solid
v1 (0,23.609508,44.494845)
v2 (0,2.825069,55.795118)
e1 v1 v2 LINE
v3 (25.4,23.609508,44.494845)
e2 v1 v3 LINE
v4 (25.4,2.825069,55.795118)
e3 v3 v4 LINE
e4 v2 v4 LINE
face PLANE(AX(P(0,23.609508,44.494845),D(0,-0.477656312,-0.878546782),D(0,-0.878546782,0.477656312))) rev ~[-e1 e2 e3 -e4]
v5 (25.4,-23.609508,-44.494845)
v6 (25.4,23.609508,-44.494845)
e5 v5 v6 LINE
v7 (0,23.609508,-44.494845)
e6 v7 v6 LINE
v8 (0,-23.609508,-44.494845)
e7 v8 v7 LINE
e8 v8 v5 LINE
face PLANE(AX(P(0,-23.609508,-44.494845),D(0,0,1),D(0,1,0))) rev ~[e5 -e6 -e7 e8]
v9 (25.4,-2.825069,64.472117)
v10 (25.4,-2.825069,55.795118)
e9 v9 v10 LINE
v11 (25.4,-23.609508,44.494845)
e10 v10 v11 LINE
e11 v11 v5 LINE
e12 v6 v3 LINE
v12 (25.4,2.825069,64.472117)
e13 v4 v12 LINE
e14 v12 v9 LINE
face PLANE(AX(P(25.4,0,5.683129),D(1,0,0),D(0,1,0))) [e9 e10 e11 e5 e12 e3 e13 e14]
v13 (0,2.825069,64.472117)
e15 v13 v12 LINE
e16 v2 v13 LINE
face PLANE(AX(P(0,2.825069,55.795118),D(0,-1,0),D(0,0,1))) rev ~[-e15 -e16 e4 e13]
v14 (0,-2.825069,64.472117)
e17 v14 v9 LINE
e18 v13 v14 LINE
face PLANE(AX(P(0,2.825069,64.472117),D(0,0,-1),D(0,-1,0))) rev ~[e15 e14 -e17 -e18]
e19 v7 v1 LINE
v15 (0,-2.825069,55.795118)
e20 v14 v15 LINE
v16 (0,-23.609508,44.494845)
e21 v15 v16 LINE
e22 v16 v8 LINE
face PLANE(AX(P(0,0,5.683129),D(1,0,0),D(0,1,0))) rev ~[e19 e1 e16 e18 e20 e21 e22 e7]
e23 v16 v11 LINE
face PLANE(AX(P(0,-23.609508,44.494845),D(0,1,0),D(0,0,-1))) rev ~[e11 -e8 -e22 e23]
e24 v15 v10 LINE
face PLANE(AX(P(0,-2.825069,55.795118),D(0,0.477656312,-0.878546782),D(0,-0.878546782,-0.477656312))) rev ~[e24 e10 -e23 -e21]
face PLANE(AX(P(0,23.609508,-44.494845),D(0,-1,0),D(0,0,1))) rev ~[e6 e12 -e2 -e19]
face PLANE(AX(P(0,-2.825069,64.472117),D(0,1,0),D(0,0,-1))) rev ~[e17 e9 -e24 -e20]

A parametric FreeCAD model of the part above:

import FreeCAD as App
import Part
import Sketcher

V = App.Vector
Q = App.Units.Quantity

doc = App.newDocument("Part")
body = doc.addObject("PartDesign::Body", "Body")

# Sketch on YZ plane
sketch1 = body.newObject("Sketcher::SketchObject", "Sketch")
sketch1.AttachmentSupport = (doc.getObject("YZ_Plane"), [""])
sketch1.MapMode = "FlatFace"
sketch1.addGeometry([
    Part.LineSegment(V(-24, 44, 0), V(-24, -44, 0)),  # 0
    Part.LineSegment(V(-24, -44, 0), V(24, -44, 0)),  # 1
    Part.LineSegment(V(24, -44, 0), V(24, 44, 0)),  # 2
    Part.LineSegment(V(24, 44, 0), V(3, 56, 0)),  # 3
    Part.LineSegment(V(3, 56, 0), V(3, 64, 0)),  # 4
    Part.LineSegment(V(3, 64, 0), V(-3, 64, 0)),  # 5
    Part.LineSegment(V(-3, 64, 0), V(-3, 56, 0)),  # 6
    Part.LineSegment(V(-3, 56, 0), V(-24, 44, 0)),  # 7
], False)
sketch1.addConstraint([
    Sketcher.Constraint("Coincident", 0, 2, 1, 1),
    Sketcher.Constraint("Coincident", 1, 2, 2, 1),
    Sketcher.Constraint("Coincident", 2, 2, 3, 1),
    Sketcher.Constraint("Coincident", 3, 2, 4, 1),
    Sketcher.Constraint("Coincident", 4, 2, 5, 1),
    Sketcher.Constraint("Coincident", 5, 2, 6, 1),
    Sketcher.Constraint("Coincident", 6, 2, 7, 1),
    Sketcher.Constraint("Coincident", 7, 2, 0, 1),
    Sketcher.Constraint("Vertical", 0),
    Sketcher.Constraint("Horizontal", 1),
    Sketcher.Constraint("Vertical", 2),
    Sketcher.Constraint("Vertical", 4),
    Sketcher.Constraint("Horizontal", 5),
    Sketcher.Constraint("Vertical", 6),
    Sketcher.Constraint("Symmetric", 0, 2, 2, 2, -1, 1),
    Sketcher.Constraint("Symmetric", 3, 2, 6, 2, -2),
    Sketcher.Constraint("Horizontal", 2, 2, 7, 2),
    Sketcher.Constraint("DistanceY", 4, 1, 4, 2, Q("8.676999 mm")),
    Sketcher.Constraint("DistanceY", 0, 2, 0, 1, Q("88.98969 mm")),
    Sketcher.Constraint("Distance", 3, Q("23.657749 mm")),
    Sketcher.Constraint("DistanceX", 1, 1, 1, 2, Q("47.219016 mm")),
    Sketcher.Constraint("DistanceX", 5, 2, 5, 1, Q("5.650138 mm")),
])
pad1 = body.newObject("PartDesign::Pad", "Pad")
pad1.Profile = sketch1
pad1.Length = Q("1 in")

doc.recompute()
